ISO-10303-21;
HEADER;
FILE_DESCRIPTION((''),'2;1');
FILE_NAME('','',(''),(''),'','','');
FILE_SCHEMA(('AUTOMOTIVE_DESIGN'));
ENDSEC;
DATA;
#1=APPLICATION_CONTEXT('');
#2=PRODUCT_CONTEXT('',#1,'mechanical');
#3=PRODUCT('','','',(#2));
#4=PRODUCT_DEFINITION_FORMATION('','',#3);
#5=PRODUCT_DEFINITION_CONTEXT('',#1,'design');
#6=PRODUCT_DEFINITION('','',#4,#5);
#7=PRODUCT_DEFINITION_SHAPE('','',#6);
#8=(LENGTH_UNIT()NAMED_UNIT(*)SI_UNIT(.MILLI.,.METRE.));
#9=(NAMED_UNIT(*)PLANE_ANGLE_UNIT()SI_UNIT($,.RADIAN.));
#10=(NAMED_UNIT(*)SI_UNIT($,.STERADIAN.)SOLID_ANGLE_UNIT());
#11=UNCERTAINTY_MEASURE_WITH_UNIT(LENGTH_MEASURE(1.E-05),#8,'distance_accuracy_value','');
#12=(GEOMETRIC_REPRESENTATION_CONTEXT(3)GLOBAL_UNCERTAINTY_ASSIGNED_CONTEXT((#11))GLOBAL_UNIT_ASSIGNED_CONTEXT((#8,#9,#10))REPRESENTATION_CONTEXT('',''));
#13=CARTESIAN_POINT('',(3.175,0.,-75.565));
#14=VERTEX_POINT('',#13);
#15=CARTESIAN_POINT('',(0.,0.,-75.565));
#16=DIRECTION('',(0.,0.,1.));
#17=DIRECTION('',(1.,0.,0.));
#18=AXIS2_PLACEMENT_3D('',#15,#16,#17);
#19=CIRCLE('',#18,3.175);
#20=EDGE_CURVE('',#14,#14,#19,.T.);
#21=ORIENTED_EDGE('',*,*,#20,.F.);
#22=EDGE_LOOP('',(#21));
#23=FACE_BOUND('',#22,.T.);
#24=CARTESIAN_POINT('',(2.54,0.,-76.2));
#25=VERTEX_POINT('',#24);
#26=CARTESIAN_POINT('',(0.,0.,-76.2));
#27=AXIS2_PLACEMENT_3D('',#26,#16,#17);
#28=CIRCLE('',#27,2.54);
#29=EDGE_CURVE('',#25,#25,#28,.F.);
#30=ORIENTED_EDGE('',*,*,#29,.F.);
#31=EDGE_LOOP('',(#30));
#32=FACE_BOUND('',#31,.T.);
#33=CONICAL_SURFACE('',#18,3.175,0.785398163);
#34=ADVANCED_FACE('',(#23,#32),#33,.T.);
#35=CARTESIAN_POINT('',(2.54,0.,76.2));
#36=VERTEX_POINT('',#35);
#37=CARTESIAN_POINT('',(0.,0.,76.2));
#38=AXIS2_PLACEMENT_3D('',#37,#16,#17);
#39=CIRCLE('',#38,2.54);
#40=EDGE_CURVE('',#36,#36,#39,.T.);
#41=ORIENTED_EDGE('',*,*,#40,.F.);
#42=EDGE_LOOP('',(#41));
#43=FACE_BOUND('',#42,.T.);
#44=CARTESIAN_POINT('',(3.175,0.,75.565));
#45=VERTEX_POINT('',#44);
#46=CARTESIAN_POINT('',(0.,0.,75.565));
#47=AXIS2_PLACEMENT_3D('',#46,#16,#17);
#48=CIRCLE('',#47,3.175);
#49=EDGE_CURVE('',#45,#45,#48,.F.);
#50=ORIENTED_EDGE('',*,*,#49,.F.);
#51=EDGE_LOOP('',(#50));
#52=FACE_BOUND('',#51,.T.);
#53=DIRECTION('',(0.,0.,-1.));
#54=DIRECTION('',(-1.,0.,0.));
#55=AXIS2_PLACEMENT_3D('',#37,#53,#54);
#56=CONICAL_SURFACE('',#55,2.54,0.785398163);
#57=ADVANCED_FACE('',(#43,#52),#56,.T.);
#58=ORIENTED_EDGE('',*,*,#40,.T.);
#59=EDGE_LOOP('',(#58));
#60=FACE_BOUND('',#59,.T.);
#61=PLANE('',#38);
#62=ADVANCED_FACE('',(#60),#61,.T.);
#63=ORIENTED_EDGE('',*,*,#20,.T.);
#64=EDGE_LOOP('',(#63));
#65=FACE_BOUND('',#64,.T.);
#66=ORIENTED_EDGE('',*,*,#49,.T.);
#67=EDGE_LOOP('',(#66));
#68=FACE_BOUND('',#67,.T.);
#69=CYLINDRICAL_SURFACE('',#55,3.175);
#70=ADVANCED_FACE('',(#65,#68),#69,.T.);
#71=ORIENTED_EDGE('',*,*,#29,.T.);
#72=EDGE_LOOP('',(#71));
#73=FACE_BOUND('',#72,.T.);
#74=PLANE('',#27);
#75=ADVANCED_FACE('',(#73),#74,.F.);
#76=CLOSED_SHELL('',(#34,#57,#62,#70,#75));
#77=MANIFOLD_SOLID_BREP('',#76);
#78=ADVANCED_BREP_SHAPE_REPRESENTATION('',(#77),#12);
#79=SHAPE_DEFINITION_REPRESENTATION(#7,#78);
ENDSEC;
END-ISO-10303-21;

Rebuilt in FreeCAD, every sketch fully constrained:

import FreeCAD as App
import Part
import Sketcher

V = App.Vector
Q = App.Units.Quantity


def edges_at(feature, points):
    """Names of the edges that pass closest to the given points."""
    edges = feature.Shape.Edges
    near = lambda p: min(range(len(edges)), key=lambda i: edges[i].distToShape(Part.Vertex(*p))[0])
    return sorted({f"Edge{near(p) + 1}" for p in points})

doc = App.newDocument("Part")
body = doc.addObject("PartDesign::Body", "Body")

sketch1 = body.newObject("Sketcher::SketchObject", "Sketch")
sketch1.AttachmentSupport = (doc.getObject("XY_Plane"), [""])
sketch1.MapMode = "FlatFace"
sketch1.addGeometry(Part.Circle(V(0, 0, 0), V(0, 0, 1), 3.2), False)
sketch1.addConstraint([
    Sketcher.Constraint("Coincident", 0, 3, -1, 1),
    Sketcher.Constraint("Diameter", 0, Q("0.25 in")),
])
pad1 = body.newObject("PartDesign::Pad", "Pad")
pad1.Profile = sketch1
pad1.Length = Q("6 in")
pad1.Midplane = True
doc.recompute()

chamfer = body.newObject("PartDesign::Chamfer", "Chamfer")
chamfer.Base = (pad1, edges_at(pad1, [(-3.175, 0, -76.2), (-3.175, 0, 76.2)]))
chamfer.Size = Q("0.025 in")

doc.recompute()
